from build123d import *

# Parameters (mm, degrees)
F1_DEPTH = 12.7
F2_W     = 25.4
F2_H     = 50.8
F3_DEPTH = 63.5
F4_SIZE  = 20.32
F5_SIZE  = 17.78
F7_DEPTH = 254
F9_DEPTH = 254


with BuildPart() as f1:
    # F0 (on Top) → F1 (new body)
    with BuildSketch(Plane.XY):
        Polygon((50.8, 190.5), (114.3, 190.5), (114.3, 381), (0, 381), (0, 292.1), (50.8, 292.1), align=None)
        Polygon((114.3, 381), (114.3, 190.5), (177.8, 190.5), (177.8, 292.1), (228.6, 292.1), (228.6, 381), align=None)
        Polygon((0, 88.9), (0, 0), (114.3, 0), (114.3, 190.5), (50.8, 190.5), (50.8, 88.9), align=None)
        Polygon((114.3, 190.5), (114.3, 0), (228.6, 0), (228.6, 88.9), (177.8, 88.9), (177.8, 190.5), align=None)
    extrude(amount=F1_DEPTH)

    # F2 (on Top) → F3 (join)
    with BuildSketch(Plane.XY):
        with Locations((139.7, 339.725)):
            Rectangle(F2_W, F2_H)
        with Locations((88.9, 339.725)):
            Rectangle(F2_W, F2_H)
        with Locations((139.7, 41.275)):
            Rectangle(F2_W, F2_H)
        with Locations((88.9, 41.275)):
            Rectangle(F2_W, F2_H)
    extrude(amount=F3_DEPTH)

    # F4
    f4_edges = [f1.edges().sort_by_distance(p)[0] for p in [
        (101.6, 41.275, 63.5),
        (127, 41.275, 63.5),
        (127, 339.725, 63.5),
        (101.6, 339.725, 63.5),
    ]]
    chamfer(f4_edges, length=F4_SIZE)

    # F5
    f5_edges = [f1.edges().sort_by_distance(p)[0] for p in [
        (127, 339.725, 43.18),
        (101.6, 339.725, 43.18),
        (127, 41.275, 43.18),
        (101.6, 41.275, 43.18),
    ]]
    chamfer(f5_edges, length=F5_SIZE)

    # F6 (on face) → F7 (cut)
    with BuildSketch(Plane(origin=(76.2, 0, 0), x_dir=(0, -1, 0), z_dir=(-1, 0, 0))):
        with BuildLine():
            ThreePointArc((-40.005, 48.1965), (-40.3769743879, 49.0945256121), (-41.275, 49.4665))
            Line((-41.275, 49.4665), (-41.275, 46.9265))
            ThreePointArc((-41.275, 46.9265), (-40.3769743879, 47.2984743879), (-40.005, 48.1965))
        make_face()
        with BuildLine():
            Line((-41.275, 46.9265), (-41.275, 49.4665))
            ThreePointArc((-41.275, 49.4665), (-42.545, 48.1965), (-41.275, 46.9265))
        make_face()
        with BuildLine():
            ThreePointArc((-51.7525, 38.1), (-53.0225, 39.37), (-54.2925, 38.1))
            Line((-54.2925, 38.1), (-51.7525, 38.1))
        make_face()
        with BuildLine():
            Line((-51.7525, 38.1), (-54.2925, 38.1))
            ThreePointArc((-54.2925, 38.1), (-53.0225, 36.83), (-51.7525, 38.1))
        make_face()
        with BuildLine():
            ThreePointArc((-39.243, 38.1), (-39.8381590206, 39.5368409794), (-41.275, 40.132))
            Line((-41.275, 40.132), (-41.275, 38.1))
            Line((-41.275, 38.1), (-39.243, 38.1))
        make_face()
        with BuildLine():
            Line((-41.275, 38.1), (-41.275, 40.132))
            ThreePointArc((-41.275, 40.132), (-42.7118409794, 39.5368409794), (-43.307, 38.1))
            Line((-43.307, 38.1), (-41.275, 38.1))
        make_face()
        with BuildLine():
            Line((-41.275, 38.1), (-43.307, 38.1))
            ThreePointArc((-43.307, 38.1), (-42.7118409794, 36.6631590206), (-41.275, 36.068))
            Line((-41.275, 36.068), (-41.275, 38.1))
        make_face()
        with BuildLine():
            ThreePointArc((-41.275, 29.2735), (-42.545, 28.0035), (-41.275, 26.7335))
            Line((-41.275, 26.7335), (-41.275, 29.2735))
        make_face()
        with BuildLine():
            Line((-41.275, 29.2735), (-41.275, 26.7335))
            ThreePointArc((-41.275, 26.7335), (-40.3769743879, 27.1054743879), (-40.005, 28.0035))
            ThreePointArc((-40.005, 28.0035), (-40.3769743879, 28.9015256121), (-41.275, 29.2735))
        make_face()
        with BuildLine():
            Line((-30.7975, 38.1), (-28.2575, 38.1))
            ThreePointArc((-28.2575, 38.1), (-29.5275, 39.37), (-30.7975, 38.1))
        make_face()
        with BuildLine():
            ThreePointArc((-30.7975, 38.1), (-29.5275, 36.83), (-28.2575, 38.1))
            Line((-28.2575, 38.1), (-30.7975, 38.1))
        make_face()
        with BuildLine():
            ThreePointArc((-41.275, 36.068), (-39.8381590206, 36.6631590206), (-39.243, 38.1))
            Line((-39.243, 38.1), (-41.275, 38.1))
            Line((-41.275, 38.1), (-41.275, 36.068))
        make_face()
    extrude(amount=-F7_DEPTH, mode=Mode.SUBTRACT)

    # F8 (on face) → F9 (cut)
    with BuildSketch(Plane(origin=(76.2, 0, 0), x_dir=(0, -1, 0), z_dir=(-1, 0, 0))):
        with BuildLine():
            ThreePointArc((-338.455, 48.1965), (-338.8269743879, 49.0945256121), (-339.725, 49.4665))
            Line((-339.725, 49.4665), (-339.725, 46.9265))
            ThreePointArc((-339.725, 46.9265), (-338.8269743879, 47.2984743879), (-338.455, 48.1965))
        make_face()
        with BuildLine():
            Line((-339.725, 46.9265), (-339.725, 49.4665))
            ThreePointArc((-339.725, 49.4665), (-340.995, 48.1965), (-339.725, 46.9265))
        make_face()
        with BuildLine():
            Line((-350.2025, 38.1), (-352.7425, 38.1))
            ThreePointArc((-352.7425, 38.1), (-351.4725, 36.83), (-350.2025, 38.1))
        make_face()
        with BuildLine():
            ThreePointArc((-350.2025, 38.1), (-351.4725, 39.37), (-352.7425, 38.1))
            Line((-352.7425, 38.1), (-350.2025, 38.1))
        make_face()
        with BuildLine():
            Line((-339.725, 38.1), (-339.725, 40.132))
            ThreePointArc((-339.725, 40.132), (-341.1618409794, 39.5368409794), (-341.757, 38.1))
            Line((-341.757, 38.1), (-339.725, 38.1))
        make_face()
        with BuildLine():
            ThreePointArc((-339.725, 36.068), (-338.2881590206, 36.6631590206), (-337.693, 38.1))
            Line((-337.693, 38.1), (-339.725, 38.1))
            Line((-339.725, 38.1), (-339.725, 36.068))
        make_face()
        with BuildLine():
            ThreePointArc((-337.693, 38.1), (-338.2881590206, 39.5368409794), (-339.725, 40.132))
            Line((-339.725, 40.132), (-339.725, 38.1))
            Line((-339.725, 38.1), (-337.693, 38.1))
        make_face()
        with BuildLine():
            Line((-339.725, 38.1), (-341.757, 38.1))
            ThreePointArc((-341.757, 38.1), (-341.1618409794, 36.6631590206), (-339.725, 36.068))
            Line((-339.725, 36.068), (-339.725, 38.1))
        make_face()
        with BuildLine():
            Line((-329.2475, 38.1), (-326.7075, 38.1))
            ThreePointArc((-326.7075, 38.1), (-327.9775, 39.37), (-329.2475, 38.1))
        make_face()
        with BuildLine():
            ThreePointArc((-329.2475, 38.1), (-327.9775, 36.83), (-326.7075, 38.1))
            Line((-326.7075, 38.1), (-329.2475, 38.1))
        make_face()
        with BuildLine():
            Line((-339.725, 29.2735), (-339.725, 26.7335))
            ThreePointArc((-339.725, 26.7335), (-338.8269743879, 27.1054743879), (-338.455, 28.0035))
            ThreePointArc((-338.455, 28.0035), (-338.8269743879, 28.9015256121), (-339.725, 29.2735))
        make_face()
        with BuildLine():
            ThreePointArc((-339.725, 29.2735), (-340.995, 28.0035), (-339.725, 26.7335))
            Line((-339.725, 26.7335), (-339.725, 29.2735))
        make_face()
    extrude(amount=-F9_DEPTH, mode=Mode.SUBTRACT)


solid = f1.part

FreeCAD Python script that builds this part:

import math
import FreeCAD as App
import Part
import Sketcher

V = App.Vector
Q = App.Units.Quantity


def edges_at(feature, points):
    """Names of the edges that pass closest to the given points."""
    edges = feature.Shape.Edges
    near = lambda p: min(range(len(edges)), key=lambda i: edges[i].distToShape(Part.Vertex(*p))[0])
    return sorted({f"Edge{near(p) + 1}" for p in points})

doc = App.newDocument("Part")
params = doc.addObject("Spreadsheet::Sheet", "Params")
for row, (alias, value) in enumerate([
    ("sketch1_width", "2 in"),
    ("sketch1_width2", "9 in"),
    ("sketch1_height", "8 in"),
    ("sketch1_height2", "3.5 in"),
    ("pad1_length", "0.5 in"),
    ("sketch2_width", "1 in"),
    ("sketch2_height", "2 in"),
    ("pad2_length", "2.5 in"),
    ("chamfer_size", "0.8 in"),
    ("chamfer2_size", "0.7 in"),
    ("sketch3_diameter", "0.1 in"),
    ("sketch3_radius", "0.08 in"),
    ("pocket1_length", "10 in"),
    ("sketch4_diameter", "0.1 in"),
    ("sketch4_radius", "0.08 in"),
    ("pocket2_length", "10 in"),
], start=1):
    params.set(f"A{row}", alias)
    params.set(f"B{row}", "=" + value)
    params.setAlias(f"B{row}", alias)

body = doc.addObject("PartDesign::Body", "Body")

# Sketch on XY plane
sketch1 = body.newObject("Sketcher::SketchObject", "Sketch")
sketch1.AttachmentSupport = (doc.getObject("XY_Plane"), [""])
sketch1.MapMode = "FlatFace"
sketch1.addGeometry([
    Part.LineSegment(V(178, 292, 0), V(229, 292, 0)),  # 0
    Part.LineSegment(V(229, 292, 0), V(229, 381, 0)),  # 1
    Part.LineSegment(V(229, 381, 0), V(0, 381, 0)),  # 2
    Part.LineSegment(V(0, 381, 0), V(0, 292, 0)),  # 3
    Part.LineSegment(V(0, 292, 0), V(51, 292, 0)),  # 4
    Part.LineSegment(V(51, 292, 0), V(51, 89, 0)),  # 5
    Part.LineSegment(V(51, 89, 0), V(0, 89, 0)),  # 6
    Part.LineSegment(V(0, 89, 0), V(0, 0, 0)),  # 7
    Part.LineSegment(V(0, 0, 0), V(229, 0, 0)),  # 8
    Part.LineSegment(V(229, 0, 0), V(229, 89, 0)),  # 9
    Part.LineSegment(V(229, 89, 0), V(178, 89, 0)),  # 10
    Part.LineSegment(V(178, 89, 0), V(178, 292, 0)),  # 11
], False)
sketch1.addConstraint([
    Sketcher.Constraint("Coincident", 0, 2, 1, 1),
    Sketcher.Constraint("Coincident", 1, 2, 2, 1),
    Sketcher.Constraint("Coincident", 2, 2, 3, 1),
    Sketcher.Constraint("Coincident", 3, 2, 4, 1),
    Sketcher.Constraint("Coincident", 4, 2, 5, 1),
    Sketcher.Constraint("Coincident", 5, 2, 6, 1),
    Sketcher.Constraint("Coincident", 6, 2, 7, 1),
    Sketcher.Constraint("Coincident", 7, 2, 8, 1),
    Sketcher.Constraint("Coincident", 8, 2, 9, 1),
    Sketcher.Constraint("Coincident", 9, 2, 10, 1),
    Sketcher.Constraint("Coincident", 10, 2, 11, 1),
    Sketcher.Constraint("Coincident", 11, 2, 0, 1),
    Sketcher.Constraint("Horizontal", 0),
    Sketcher.Constraint("Vertical", 1),
    Sketcher.Constraint("Horizontal", 2),
    Sketcher.Constraint("Vertical", 3),
    Sketcher.Constraint("Horizontal", 4),
    Sketcher.Constraint("Vertical", 5),
    Sketcher.Constraint("Horizontal", 6),
    Sketcher.Constraint("Vertical", 7),
    Sketcher.Constraint("Horizontal", 8),
    Sketcher.Constraint("Vertical", 9),
    Sketcher.Constraint("Horizontal", 10),
    Sketcher.Constraint("Vertical", 11),
    Sketcher.Constraint("Coincident", 7, 2, -1, 1),
    Sketcher.Constraint("PointOnObject", 2, 2, -2),
    Sketcher.Constraint("Horizontal", 0, 2, 3, 2),
    Sketcher.Constraint("Horizontal", 6, 2, 9, 2),
    Sketcher.Constraint("Vertical", 1, 2, 8, 2),
    Sketcher.Constraint("Equal", 0, 4),
    Sketcher.Constraint("Equal", 3, 7),
    Sketcher.Constraint("DistanceX", 0, 1, 0, 2, Q("2 in")),
    Sketcher.Constraint("DistanceX", 2, 2, 2, 1, Q("9 in")),
    Sketcher.Constraint("DistanceY", 5, 2, 5, 1, Q("8 in")),
    Sketcher.Constraint("DistanceY", 1, 1, 1, 2, Q("3.5 in")),
])
sketch1.setExpression("Constraints[31]", "Params.sketch1_width")
sketch1.setExpression("Constraints[32]", "Params.sketch1_width2")
sketch1.setExpression("Constraints[33]", "Params.sketch1_height")
sketch1.setExpression("Constraints[34]", "Params.sketch1_height2")
pad1 = body.newObject("PartDesign::Pad", "Pad")
pad1.Profile = sketch1
pad1.setExpression("Length", "Params.pad1_length")

# Sketch on XY plane
sketch2 = body.newObject("Sketcher::SketchObject", "Sketch001")
sketch2.AttachmentSupport = (doc.getObject("XY_Plane"), [""])
sketch2.MapMode = "FlatFace"
sketch2.addGeometry([
    Part.LineSegment(V(127, 365, 0), V(127, 314, 0)),  # 0
    Part.LineSegment(V(127, 314, 0), V(152, 314, 0)),  # 1
    Part.LineSegment(V(152, 314, 0), V(152, 365, 0)),  # 2
    Part.LineSegment(V(152, 365, 0), V(127, 365, 0)),  # 3
    Part.LineSegment(V(76, 365, 0), V(76, 314, 0)),  # 4
    Part.LineSegment(V(76, 314, 0), V(102, 314, 0)),  # 5
    Part.LineSegment(V(102, 314, 0), V(102, 365, 0)),  # 6
    Part.LineSegment(V(102, 365, 0), V(76, 365, 0)),  # 7
    Part.LineSegment(V(127, 67, 0), V(127, 16, 0)),  # 8
    Part.LineSegment(V(127, 16, 0), V(152, 16, 0)),  # 9
    Part.LineSegment(V(152, 16, 0), V(152, 67, 0)),  # 10
    Part.LineSegment(V(152, 67, 0), V(127, 67, 0)),  # 11
    Part.LineSegment(V(76, 67, 0), V(76, 16, 0)),  # 12
    Part.LineSegment(V(76, 16, 0), V(102, 16, 0)),  # 13
    Part.LineSegment(V(102, 16, 0), V(102, 67, 0)),  # 14
    Part.LineSegment(V(102, 67, 0), V(76, 67, 0)),  # 15
], False)
sketch2.addConstraint([
    Sketcher.Constraint("Coincident", 0, 2, 1, 1),
    Sketcher.Constraint("Coincident", 1, 2, 2, 1),
    Sketcher.Constraint("Coincident", 2, 2, 3, 1),
    Sketcher.Constraint("Coincident", 3, 2, 0, 1),
    Sketcher.Constraint("Coincident", 4, 2, 5, 1),
    Sketcher.Constraint("Coincident", 5, 2, 6, 1),
    Sketcher.Constraint("Coincident", 6, 2, 7, 1),
    Sketcher.Constraint("Coincident", 7, 2, 4, 1),
    Sketcher.Constraint("Coincident", 8, 2, 9, 1),
    Sketcher.Constraint("Coincident", 9, 2, 10, 1),
    Sketcher.Constraint("Coincident", 10, 2, 11, 1),
    Sketcher.Constraint("Coincident", 11, 2, 8, 1),
    Sketcher.Constraint("Coincident", 12, 2, 13, 1),
    Sketcher.Constraint("Coincident", 13, 2, 14, 1),
    Sketcher.Constraint("Coincident", 14, 2, 15, 1),
    Sketcher.Constraint("Coincident", 15, 2, 12, 1),
    Sketcher.Constraint("Vertical", 0),
    Sketcher.Constraint("Horizontal", 1),
    Sketcher.Constraint("Vertical", 2),
    Sketcher.Constraint("Horizontal", 3),
    Sketcher.Constraint("Vertical", 4),
    Sketcher.Constraint("Horizontal", 5),
    Sketcher.Constraint("Vertical", 6),
    Sketcher.Constraint("Horizontal", 7),
    Sketcher.Constraint("Vertical", 8),
    Sketcher.Constraint("Horizontal", 9),
    Sketcher.Constraint("Vertical", 10),
    Sketcher.Constraint("Horizontal", 11),
    Sketcher.Constraint("Vertical", 12),
    Sketcher.Constraint("Horizontal", 13),
    Sketcher.Constraint("Vertical", 14),
    Sketcher.Constraint("Horizontal", 15),
    Sketcher.Constraint("Horizontal", 1, 2, 4, 2),
    Sketcher.Constraint("Horizontal", 3, 2, 6, 2),
    Sketcher.Constraint("Horizontal", 9, 2, 12, 2),
    Sketcher.Constraint("Horizontal", 11, 2, 14, 2),
    Sketcher.Constraint("Vertical", 3, 2, 8, 2),
    Sketcher.Constraint("Vertical", 2, 2, 9, 2),
    Sketcher.Constraint("Vertical", 7, 2, 12, 2),
    Sketcher.Constraint("Vertical", 6, 2, 13, 2),
    Sketcher.Constraint("Equal", 3, 5),
    Sketcher.Constraint("Equal", 6, 8),
    Sketcher.Constraint("DistanceX", 1, 1, 1, 2, Q("1 in")),
    Sketcher.Constraint("DistanceY", 0, 2, 0, 1, Q("2 in")),
    Sketcher.Constraint("DistanceX", -1, 1, 0, 2, Q("5 in")),
    Sketcher.Constraint("DistanceX", -1, 1, 4, 2, Q("3 in")),
    Sketcher.Constraint("DistanceY", 8, 2, 0, 2, Q("11.75 in")),
    Sketcher.Constraint("DistanceY", -1, 1, 0, 2, Q("12.375 in")),
])
sketch2.setExpression("Constraints[42]", "Params.sketch2_width")
sketch2.setExpression("Constraints[43]", "Params.sketch2_height")
pad2 = body.newObject("PartDesign::Pad", "Pad001")
pad2.Profile = sketch2
pad2.setExpression("Length", "Params.pad2_length")
doc.recompute()

chamfer = body.newObject("PartDesign::Chamfer", "Chamfer")
chamfer.Base = (pad2, edges_at(pad2, [
    (101.6, 41.275, 63.5),
    (127, 41.275, 63.5),
    (127, 339.725, 63.5),
    (101.6, 339.725, 63.5),
]))
chamfer.setExpression("Size", "Params.chamfer_size")
doc.recompute()

chamfer2 = body.newObject("PartDesign::Chamfer", "Chamfer001")
chamfer2.Base = (chamfer, edges_at(chamfer, [
    (127, 339.725, 43.18),
    (101.6, 339.725, 43.18),
    (127, 41.275, 43.18),
    (101.6, 41.275, 43.18),
]))
chamfer2.setExpression("Size", "Params.chamfer2_size")

# Sketch on YZ plane
sketch3 = body.newObject("Sketcher::SketchObject", "Sketch002")
sketch3.AttachmentSupport = (doc.getObject("YZ_Plane"), [""])
sketch3.MapMode = "FlatFace"
sketch3.AttachmentOffset = App.Placement(V(0, 0, 3 * 25.4), App.Rotation())
sketch3.addGeometry([
    Part.ArcOfCircle(Part.Circle(V(41.3, 48.2, 0), V(0, 0, 1), 1.3), math.radians(90), math.radians(180)),  # 0
    Part.ArcOfCircle(Part.Circle(V(41.3, 48.2, 0), V(0, 0, 1), 1.3), math.radians(-90), math.radians(90)),  # 1
    Part.ArcOfCircle(Part.Circle(V(41.3, 48.2, 0), V(0, 0, 1), 1.3), math.radians(180), math.radians(270)),  # 2
    Part.Circle(V(53, 38.1, 0), V(0, 0, 1), 1.3),  # 3
    Part.ArcOfCircle(Part.Circle(V(41.3, 38.1, 0), V(0, 0, 1), 2), math.radians(90), math.radians(180)),  # 4
    Part.ArcOfCircle(Part.Circle(V(41.3, 38.1, 0), V(0, 0, 1), 2), math.radians(0), math.radians(90)),  # 5
    Part.ArcOfCircle(Part.Circle(V(41.3, 38.1, 0), V(0, 0, 1), 2), math.radians(-90), math.radians(0)),  # 6
    Part.ArcOfCircle(Part.Circle(V(41.3, 38.1, 0), V(0, 0, 1), 2), math.radians(180), math.radians(270)),  # 7
    Part.ArcOfCircle(Part.Circle(V(41.3, 28, 0), V(0, 0, 1), 1.3), math.radians(-90), math.radians(90)),  # 8
    Part.ArcOfCircle(Part.Circle(V(41.3, 28, 0), V(0, 0, 1), 1.3), math.radians(180), math.radians(270)),  # 9
    Part.ArcOfCircle(Part.Circle(V(41.3, 28, 0), V(0, 0, 1), 1.3), math.radians(90), math.radians(180)),  # 10
    Part.Circle(V(29.5, 38.1, 0), V(0, 0, 1), 1.3),  # 11
], False)
sketch3.addConstraint([
    Sketcher.Constraint("Tangent", 0, 1, 1, 2),
    Sketcher.Constraint("Tangent", 1, 1, 2, 2),
    Sketcher.Constraint("Tangent", 2, 1, 0, 2),
    Sketcher.Constraint("Tangent", 4, 1, 5, 2),
    Sketcher.Constraint("Tangent", 5, 1, 6, 2),
    Sketcher.Constraint("Tangent", 6, 1, 7, 2),
    Sketcher.Constraint("Tangent", 7, 1, 4, 2),
    Sketcher.Constraint("Tangent", 8, 1, 9, 2),
    Sketcher.Constraint("Tangent", 9, 1, 10, 2),
    Sketcher.Constraint("Tangent", 10, 1, 8, 2),
    Sketcher.Constraint("Equal", 2, 3),
    Sketcher.Constraint("Equal", 4, 5),
    Sketcher.Constraint("Equal", 3, 8),
    Sketcher.Constraint("Equal", 10, 11),
    Sketcher.Constraint("Horizontal", 3, 3, 4, 3),
    Sketcher.Constraint("Horizontal", 7, 3, 11, 3),
    Sketcher.Constraint("Horizontal", 1, 3, 2, 1),
    Sketcher.Constraint("Horizontal", 11, 3, 5, 1),
    Sketcher.Constraint("Horizontal", 5, 1, 7, 1),
    Sketcher.Constraint("Horizontal", 10, 3, 9, 1),
    Sketcher.Constraint("Vertical", 2, 3, 4, 3),
    Sketcher.Constraint("Vertical", 7, 3, 8, 3),
    Sketcher.Constraint("Vertical", 10, 3, 0, 1),
    Sketcher.Constraint("Vertical", 0, 1, 1, 1),
    Sketcher.Constraint("Vertical", 1, 1, 4, 1),
    Sketcher.Constraint("Vertical", 4, 1, 6, 1),
    Sketcher.Constraint("Vertical", 6, 1, 8, 1),
    Sketcher.Constraint("Vertical", 8, 1, 10, 1),
    Sketcher.Constraint("Diameter", 3, Q("0.1 in")),
    Sketcher.Constraint("Radius", 4, Q("0.08 in")),
    Sketcher.Constraint("DistanceY", -1, 1, 3, 3, Q("1.5 in")),
    Sketcher.Constraint("DistanceX", -1, 1, 0, 3, Q("1.625 in")),
    Sketcher.Constraint("DistanceY", -1, 1, 0, 3, Q("1.8975 in")),
    Sketcher.Constraint("DistanceX", -1, 1, 3, 3, Q("2.0875 in")),
    Sketcher.Constraint("DistanceY", -1, 1, 8, 3, Q("1.1025 in")),
    Sketcher.Constraint("DistanceX", -1, 1, 11, 3, Q("1.1625 in")),
])
sketch3.setExpression("Constraints[28]", "Params.sketch3_diameter")
sketch3.setExpression("Constraints[29]", "Params.sketch3_radius")
pocket1 = body.newObject("PartDesign::Pocket", "Pocket")
pocket1.Profile = sketch3
pocket1.setExpression("Length", "Params.pocket1_length")
pocket1.Reversed = True

# Sketch on YZ plane
sketch4 = body.newObject("Sketcher::SketchObject", "Sketch003")
sketch4.AttachmentSupport = (doc.getObject("YZ_Plane"), [""])
sketch4.MapMode = "FlatFace"
sketch4.AttachmentOffset = App.Placement(V(0, 0, 3 * 25.4), App.Rotation())
sketch4.addGeometry([
    Part.ArcOfCircle(Part.Circle(V(339.7, 48.2, 0), V(0, 0, 1), 1.3), math.radians(90), math.radians(180)),  # 0
    Part.ArcOfCircle(Part.Circle(V(339.7, 48.2, 0), V(0, 0, 1), 1.3), math.radians(-90), math.radians(90)),  # 1
    Part.ArcOfCircle(Part.Circle(V(339.7, 48.2, 0), V(0, 0, 1), 1.3), math.radians(180), math.radians(270)),  # 2
    Part.Circle(V(351.5, 38.1, 0), V(0, 0, 1), 1.3),  # 3
    Part.ArcOfCircle(Part.Circle(V(339.7, 38.1, 0), V(0, 0, 1), 2), math.radians(0), math.radians(90)),  # 4
    Part.ArcOfCircle(Part.Circle(V(339.7, 38.1, 0), V(0, 0, 1), 2), math.radians(-90), math.radians(0)),  # 5
    Part.ArcOfCircle(Part.Circle(V(339.7, 38.1, 0), V(0, 0, 1), 2), math.radians(180), math.radians(270)),  # 6
    Part.ArcOfCircle(Part.Circle(V(339.7, 38.1, 0), V(0, 0, 1), 2), math.radians(90), math.radians(180)),  # 7
    Part.Circle(V(328, 38.1, 0), V(0, 0, 1), 1.3),  # 8
    Part.ArcOfCircle(Part.Circle(V(339.7, 28, 0), V(0, 0, 1), 1.3), math.radians(180), math.radians(270)),  # 9
    Part.ArcOfCircle(Part.Circle(V(339.7, 28, 0), V(0, 0, 1), 1.3), math.radians(90), math.radians(180)),  # 10
    Part.ArcOfCircle(Part.Circle(V(339.7, 28, 0), V(0, 0, 1), 1.3), math.radians(-90), math.radians(90)),  # 11
], False)
sketch4.addConstraint([
    Sketcher.Constraint("Tangent", 0, 1, 1, 2),
    Sketcher.Constraint("Tangent", 1, 1, 2, 2),
    Sketcher.Constraint("Tangent", 2, 1, 0, 2),
    Sketcher.Constraint("Tangent", 4, 1, 5, 2),
    Sketcher.Constraint("Tangent", 5, 1, 6, 2),
    Sketcher.Constraint("Tangent", 6, 1, 7, 2),
    Sketcher.Constraint("Tangent", 7, 1, 4, 2),
    Sketcher.Constraint("Tangent", 9, 1, 10, 2),
    Sketcher.Constraint("Tangent", 10, 1, 11, 2),
    Sketcher.Constraint("Tangent", 11, 1, 9, 2),
    Sketcher.Constraint("Equal", 2, 3),
    Sketcher.Constraint("Equal", 4, 5),
    Sketcher.Constraint("Equal", 3, 8),
    Sketcher.Constraint("Equal", 8, 9),
    Sketcher.Constraint("Horizontal", 3, 3, 4, 3),
    Sketcher.Constraint("Horizontal", 7, 3, 8, 3),
    Sketcher.Constraint("Horizontal", 1, 3, 2, 1),
    Sketcher.Constraint("Horizontal", 8, 3, 4, 1),
    Sketcher.Constraint("Horizontal", 4, 1, 6, 1),
    Sketcher.Constraint("Horizontal", 11, 3, 9, 1),
    Sketcher.Constraint("Vertical", 2, 3, 4, 3),
    Sketcher.Constraint("Vertical", 7, 3, 9, 3),
    Sketcher.Constraint("Vertical", 11, 3, 0, 1),
    Sketcher.Constraint("Vertical", 0, 1, 1, 1),
    Sketcher.Constraint("Vertical", 1, 1, 5, 1),
    Sketcher.Constraint("Vertical", 5, 1, 7, 1),
    Sketcher.Constraint("Vertical", 7, 1, 10, 1),
    Sketcher.Constraint("Vertical", 10, 1, 11, 1),
    Sketcher.Constraint("Diameter", 3, Q("0.1 in")),
    Sketcher.Constraint("Radius", 4, Q("0.08 in")),
    Sketcher.Constraint("DistanceY", -1, 1, 3, 3, Q("1.5 in")),
    Sketcher.Constraint("DistanceX", -1, 1, 0, 3, Q("13.375 in")),
    Sketcher.Constraint("DistanceY", -1, 1, 0, 3, Q("1.8975 in")),
    Sketcher.Constraint("DistanceX", -1, 1, 3, 3, Q("13.8375 in")),
    Sketcher.Constraint("DistanceX", -1, 1, 8, 3, Q("12.9125 in")),
    Sketcher.Constraint("DistanceY", -1, 1, 9, 3, Q("1.1025 in")),
])
sketch4.setExpression("Constraints[28]", "Params.sketch4_diameter")
sketch4.setExpression("Constraints[29]", "Params.sketch4_radius")
pocket2 = body.newObject("PartDesign::Pocket", "Pocket001")
pocket2.Profile = sketch4
pocket2.setExpression("Length", "Params.pocket2_length")
pocket2.Reversed = True

doc.recompute()
